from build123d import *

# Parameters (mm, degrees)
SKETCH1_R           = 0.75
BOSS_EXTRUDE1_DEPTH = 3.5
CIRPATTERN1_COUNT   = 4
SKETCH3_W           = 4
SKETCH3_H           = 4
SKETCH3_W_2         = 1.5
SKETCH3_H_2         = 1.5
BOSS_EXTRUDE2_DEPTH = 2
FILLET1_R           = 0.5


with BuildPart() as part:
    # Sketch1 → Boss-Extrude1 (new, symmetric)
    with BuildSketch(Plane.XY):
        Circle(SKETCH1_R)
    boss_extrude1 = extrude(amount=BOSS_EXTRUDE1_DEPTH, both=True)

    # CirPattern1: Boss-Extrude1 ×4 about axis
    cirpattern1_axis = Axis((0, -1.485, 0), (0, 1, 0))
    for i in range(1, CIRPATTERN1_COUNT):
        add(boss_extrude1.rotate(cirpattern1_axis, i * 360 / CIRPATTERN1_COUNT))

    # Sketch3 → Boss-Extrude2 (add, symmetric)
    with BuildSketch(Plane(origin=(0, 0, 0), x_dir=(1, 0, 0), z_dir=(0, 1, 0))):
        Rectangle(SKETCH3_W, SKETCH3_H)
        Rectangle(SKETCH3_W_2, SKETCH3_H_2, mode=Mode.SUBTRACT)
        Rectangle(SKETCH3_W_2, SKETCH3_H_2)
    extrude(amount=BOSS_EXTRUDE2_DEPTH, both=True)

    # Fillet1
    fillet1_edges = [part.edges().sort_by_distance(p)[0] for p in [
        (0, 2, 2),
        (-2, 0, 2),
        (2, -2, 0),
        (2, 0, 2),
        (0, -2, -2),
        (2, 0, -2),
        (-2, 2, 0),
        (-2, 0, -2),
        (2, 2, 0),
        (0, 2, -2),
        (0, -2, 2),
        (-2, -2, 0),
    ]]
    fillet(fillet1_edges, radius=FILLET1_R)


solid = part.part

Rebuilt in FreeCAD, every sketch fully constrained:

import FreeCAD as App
import Part
import Sketcher
from FreeCAD import Vector
Q = App.Units.Quantity


def edges_at(feature, points):
    """Names of the edges that pass closest to the given points."""
    edges = feature.Shape.Edges
    near = lambda p: min(range(len(edges)), key=lambda i: edges[i].distToShape(Part.Vertex(*p))[0])
    return sorted({f"Edge{near(p) + 1}" for p in points})


def add_polygon(sketch, points):
    """Adds a closed chain of lines whose ends are joined by coincident constraints."""
    first, n = sketch.GeometryCount, len(points)
    for a, b in zip(points, points[1:] + points[:1]):
        sketch.addGeometry(Part.LineSegment(App.Vector(*a, 0), App.Vector(*b, 0)), False)
    for i in range(n):
        sketch.addConstraint(Sketcher.Constraint("Coincident", first + i, 2, first + (i + 1) % n, 1))

doc = App.newDocument("Part")
body = doc.addObject("PartDesign::Body", "Body")

# Sketch on XY plane
sketch1 = body.newObject("Sketcher::SketchObject", "Sketch")
sketch1.AttachmentSupport = (doc.getObject("XY_Plane"), [""])
sketch1.MapMode = "FlatFace"
sketch1.addGeometry(Part.Circle(Vector(0, 0, 0), Vector(0, 0, 1), 0.75), False)
sketch1.addConstraint([
    Sketcher.Constraint("Coincident", 0, 3, -1, 1),
    Sketcher.Constraint("Diameter", 0, Q("1.5 mm")),
])
pad1 = body.newObject("PartDesign::Pad", "Pad")
pad1.Profile = sketch1
pad1.Length = 7
pad1.Midplane = True
doc.recompute()

polarpattern = body.newObject("PartDesign::PolarPattern", "PolarPattern")
polarpattern.Originals = [pad1]
polarpattern.Axis = (doc.getObject("Y_Axis"), [""])
polarpattern.Angle = 360
polarpattern.Occurrences = 4
body.Tip = polarpattern

# Sketch on XZ plane
sketch2 = body.newObject("Sketcher::SketchObject", "Sketch001")
sketch2.AttachmentSupport = (doc.getObject("XZ_Plane"), [""])
sketch2.MapMode = "FlatFace"
add_polygon(sketch2, [(-2, -2), (-2, 2), (2, 2), (2, -2)])  # lines 0-3
sketch2.addConstraint([
    Sketcher.Constraint("Vertical", 0),
    Sketcher.Constraint("Horizontal", 1),
    Sketcher.Constraint("Vertical", 2),
    Sketcher.Constraint("Horizontal", 3),
    Sketcher.Constraint("Symmetric", 0, 2, 2, 2, -1, 1),
    Sketcher.Constraint("Equal", 3, 0),
    Sketcher.Constraint("DistanceX", 1, 1, 1, 2, Q("4 mm")),
])
pad2 = body.newObject("PartDesign::Pad", "Pad001")
pad2.Profile = sketch2
pad2.Length = 4
pad2.Midplane = True
doc.recompute()

fillet = body.newObject("PartDesign::Fillet", "Fillet")
fillet.Base = (pad2, edges_at(pad2, [
    (0, 2, 2),
    (-2, 0, 2),
    (2, -2, 0),
    (2, 0, 2),
    (0, -2, -2),
    (2, 0, -2),
    (-2, 2, 0),
    (-2, 0, -2),
    (2, 2, 0),
    (0, 2, -2),
    (0, -2, 2),
    (-2, -2, 0),
]))
fillet.Radius = 0.5

doc.recompute()
